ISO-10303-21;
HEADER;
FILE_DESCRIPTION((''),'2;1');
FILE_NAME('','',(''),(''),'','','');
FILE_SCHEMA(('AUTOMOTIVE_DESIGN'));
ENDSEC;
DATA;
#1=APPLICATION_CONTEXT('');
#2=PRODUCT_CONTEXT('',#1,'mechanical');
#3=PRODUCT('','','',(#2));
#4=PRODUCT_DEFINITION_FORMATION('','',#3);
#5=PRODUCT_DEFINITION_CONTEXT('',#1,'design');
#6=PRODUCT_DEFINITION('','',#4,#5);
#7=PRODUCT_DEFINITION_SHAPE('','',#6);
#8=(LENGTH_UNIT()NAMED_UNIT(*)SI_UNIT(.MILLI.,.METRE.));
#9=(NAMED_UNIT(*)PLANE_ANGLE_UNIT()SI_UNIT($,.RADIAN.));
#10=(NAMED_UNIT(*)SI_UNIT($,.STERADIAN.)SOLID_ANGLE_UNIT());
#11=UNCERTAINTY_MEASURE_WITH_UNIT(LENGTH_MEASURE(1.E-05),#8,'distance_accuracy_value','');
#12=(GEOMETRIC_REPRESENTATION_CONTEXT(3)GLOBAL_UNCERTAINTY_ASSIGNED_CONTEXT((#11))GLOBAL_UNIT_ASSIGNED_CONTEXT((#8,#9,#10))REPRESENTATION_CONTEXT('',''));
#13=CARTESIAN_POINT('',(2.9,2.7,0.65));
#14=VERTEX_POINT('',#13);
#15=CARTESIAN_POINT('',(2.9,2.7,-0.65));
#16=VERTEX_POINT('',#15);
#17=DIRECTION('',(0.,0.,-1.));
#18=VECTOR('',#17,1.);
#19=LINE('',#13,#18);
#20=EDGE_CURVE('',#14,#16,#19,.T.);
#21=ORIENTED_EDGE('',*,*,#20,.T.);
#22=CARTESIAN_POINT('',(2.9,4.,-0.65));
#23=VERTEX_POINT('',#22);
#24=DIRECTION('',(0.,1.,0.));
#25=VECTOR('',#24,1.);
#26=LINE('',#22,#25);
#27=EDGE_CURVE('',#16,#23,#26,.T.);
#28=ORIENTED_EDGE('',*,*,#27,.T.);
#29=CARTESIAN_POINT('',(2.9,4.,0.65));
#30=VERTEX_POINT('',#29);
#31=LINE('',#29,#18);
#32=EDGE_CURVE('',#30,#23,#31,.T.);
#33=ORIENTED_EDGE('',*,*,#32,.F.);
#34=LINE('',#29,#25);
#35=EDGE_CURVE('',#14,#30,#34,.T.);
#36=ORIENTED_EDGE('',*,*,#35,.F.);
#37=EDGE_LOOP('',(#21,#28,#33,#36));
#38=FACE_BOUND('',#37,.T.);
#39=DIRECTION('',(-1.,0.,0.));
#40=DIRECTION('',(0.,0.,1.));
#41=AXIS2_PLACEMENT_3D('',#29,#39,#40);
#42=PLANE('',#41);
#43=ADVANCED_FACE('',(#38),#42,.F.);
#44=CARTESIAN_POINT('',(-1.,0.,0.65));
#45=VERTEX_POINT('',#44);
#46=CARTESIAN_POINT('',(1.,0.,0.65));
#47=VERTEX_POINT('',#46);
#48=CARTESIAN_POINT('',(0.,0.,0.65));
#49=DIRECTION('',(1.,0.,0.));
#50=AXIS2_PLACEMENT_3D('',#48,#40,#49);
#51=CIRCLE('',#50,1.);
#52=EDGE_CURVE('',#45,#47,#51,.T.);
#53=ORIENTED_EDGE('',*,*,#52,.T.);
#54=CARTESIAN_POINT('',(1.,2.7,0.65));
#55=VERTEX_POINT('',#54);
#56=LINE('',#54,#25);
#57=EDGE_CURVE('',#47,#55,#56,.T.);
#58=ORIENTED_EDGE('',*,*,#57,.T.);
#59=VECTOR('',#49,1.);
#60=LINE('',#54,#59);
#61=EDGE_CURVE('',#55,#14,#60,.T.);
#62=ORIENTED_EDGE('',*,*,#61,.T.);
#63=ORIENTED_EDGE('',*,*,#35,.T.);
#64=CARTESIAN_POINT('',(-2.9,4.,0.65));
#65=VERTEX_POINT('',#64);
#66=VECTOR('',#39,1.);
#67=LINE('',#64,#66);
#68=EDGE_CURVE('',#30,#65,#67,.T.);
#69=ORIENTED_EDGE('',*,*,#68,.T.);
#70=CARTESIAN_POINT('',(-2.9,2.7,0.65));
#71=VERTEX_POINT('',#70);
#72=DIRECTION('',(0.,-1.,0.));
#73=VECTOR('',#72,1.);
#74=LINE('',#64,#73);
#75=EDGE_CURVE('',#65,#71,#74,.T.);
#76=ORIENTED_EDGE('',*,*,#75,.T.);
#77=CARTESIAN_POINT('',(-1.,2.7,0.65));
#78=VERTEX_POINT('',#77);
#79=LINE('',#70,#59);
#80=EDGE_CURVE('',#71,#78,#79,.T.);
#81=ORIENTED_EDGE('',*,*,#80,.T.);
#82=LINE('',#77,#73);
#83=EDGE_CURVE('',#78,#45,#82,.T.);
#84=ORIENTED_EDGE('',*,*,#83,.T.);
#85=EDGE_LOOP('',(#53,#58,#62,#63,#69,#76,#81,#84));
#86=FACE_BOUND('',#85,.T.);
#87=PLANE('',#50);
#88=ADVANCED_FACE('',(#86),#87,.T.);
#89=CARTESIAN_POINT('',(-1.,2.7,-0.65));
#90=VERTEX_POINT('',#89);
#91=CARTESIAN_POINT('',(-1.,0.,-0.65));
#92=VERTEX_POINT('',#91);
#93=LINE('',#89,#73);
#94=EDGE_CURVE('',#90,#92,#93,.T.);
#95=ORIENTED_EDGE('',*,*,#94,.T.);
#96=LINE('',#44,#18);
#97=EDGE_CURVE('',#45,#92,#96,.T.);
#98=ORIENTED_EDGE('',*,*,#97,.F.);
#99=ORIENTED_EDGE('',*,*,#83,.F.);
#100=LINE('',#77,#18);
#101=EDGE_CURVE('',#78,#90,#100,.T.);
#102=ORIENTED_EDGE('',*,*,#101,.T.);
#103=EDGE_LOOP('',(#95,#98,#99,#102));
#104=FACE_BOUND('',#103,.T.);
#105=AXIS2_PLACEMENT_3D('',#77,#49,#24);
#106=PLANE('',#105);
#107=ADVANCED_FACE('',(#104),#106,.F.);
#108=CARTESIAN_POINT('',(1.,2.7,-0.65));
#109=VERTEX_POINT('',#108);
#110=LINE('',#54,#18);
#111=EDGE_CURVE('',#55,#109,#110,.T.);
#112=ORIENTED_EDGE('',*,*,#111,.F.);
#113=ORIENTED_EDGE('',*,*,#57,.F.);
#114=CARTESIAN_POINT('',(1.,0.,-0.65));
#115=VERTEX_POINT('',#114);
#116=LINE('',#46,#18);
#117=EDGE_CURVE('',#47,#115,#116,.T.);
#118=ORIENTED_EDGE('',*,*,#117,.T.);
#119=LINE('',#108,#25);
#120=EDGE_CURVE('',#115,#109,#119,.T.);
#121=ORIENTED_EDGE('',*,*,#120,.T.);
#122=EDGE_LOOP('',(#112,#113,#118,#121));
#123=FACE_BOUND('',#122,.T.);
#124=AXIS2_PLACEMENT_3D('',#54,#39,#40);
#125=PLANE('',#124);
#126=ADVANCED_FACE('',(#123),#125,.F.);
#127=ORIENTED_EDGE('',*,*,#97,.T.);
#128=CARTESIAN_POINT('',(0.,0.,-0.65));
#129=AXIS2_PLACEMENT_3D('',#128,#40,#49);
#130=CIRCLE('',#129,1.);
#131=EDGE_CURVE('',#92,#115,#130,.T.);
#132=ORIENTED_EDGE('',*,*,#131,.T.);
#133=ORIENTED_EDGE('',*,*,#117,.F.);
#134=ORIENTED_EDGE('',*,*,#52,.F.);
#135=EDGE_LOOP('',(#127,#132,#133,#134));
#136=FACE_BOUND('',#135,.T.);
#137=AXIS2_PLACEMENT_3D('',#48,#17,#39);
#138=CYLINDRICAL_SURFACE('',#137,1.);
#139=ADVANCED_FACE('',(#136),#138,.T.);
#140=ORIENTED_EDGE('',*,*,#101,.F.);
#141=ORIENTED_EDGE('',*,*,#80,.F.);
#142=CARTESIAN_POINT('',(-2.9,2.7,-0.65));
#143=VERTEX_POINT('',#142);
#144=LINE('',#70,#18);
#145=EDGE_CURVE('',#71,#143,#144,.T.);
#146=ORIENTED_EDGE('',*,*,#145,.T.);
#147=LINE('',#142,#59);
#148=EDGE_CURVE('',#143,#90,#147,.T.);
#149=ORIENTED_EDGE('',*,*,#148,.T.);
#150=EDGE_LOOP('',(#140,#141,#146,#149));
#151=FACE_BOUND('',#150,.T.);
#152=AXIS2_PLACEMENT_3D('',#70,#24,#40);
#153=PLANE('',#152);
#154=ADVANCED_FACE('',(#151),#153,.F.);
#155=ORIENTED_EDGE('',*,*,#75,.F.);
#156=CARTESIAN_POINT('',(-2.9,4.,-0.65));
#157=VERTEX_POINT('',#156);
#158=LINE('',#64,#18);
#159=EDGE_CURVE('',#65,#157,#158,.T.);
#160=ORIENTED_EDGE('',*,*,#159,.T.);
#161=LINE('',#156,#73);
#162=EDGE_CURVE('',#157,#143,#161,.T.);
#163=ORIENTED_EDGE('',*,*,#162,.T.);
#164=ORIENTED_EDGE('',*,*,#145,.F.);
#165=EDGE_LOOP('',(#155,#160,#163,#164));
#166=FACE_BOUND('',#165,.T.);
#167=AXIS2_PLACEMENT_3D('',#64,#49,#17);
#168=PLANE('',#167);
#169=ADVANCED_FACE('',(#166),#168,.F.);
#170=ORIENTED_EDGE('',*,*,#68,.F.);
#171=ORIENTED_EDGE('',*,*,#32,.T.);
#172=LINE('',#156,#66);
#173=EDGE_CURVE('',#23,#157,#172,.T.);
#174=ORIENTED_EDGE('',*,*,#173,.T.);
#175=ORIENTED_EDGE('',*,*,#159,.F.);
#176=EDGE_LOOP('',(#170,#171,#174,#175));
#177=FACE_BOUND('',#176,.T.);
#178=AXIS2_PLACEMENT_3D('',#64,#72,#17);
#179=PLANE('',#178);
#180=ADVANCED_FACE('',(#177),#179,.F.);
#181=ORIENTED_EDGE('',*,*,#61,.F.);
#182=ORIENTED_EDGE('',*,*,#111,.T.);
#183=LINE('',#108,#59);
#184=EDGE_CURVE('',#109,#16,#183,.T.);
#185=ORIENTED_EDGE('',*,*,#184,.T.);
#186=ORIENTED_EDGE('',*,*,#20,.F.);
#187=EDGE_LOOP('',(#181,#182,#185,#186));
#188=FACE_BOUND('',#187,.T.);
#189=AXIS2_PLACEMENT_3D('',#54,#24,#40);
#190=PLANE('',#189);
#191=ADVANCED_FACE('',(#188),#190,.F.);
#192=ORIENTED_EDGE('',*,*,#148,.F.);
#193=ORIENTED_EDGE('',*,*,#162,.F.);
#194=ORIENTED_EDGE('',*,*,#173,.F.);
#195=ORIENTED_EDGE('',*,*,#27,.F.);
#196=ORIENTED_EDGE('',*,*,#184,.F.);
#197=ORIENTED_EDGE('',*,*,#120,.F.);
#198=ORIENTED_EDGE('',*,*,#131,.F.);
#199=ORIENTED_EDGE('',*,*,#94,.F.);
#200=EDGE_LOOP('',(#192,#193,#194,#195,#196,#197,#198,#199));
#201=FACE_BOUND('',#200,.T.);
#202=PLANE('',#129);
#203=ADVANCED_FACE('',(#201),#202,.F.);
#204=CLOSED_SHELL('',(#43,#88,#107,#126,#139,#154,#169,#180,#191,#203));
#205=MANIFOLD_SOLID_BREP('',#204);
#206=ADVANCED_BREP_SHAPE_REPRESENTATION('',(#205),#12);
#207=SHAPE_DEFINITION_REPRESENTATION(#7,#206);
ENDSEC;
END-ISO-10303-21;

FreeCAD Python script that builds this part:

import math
import FreeCAD as App
import Part
import Sketcher

doc = App.newDocument("Part")
body = doc.addObject("PartDesign::Body", "Body")

sketch1 = doc.addObject("Sketcher::SketchObject", "Sketch")
body.addObject(sketch1)
sketch1.AttachmentSupport = (doc.XY_Plane, [""])
sketch1.MapMode = "FlatFace"
sketch1.addGeometry([
    Part.LineSegment(App.Vector(1, 2.7, 0), App.Vector(2.9, 2.7, 0)),
    Part.LineSegment(App.Vector(2.9, 2.7, 0), App.Vector(2.9, 4, 0)),
    Part.LineSegment(App.Vector(2.9, 4, 0), App.Vector(-2.9, 4, 0)),
    Part.LineSegment(App.Vector(-2.9, 4, 0), App.Vector(-2.9, 2.7, 0)),
    Part.LineSegment(App.Vector(-2.9, 2.7, 0), App.Vector(-1, 2.7, 0)),
    Part.LineSegment(App.Vector(-1, 2.7, 0), App.Vector(-1, 0, 0)),
    Part.ArcOfCircle(Part.Circle(App.Vector(0, 0, 0), App.Vector(0, 0, 1), 1), math.radians(180), math.radians(360)),
    Part.LineSegment(App.Vector(1, 0, 0), App.Vector(1, 2.7, 0)),
], False)
sketch1.addConstraint([
    Sketcher.Constraint("Coincident", 0, 2, 1, 1),
    Sketcher.Constraint("Coincident", 1, 2, 2, 1),
    Sketcher.Constraint("Coincident", 2, 2, 3, 1),
    Sketcher.Constraint("Coincident", 3, 2, 4, 1),
    Sketcher.Constraint("Coincident", 4, 2, 5, 1),
    Sketcher.Constraint("Tangent", 5, 2, 6, 1),
    Sketcher.Constraint("Tangent", 6, 2, 7, 1),
    Sketcher.Constraint("Coincident", 7, 2, 0, 1),
    Sketcher.Constraint("Horizontal", 0),
    Sketcher.Constraint("Vertical", 1),
    Sketcher.Constraint("Horizontal", 2),
    Sketcher.Constraint("Vertical", 3),
    Sketcher.Constraint("Horizontal", 4),
    Sketcher.Constraint("Vertical", 5),
    Sketcher.Constraint("Vertical", 7),
    Sketcher.Constraint("Coincident", 6, 3, -1, 1),
    Sketcher.Constraint("Symmetric", 0, 2, 3, 2, -2),
    Sketcher.Constraint("Radius", 6, 1.0),
    Sketcher.Constraint("DistanceX", 0, 1, 0, 2, 1.9),
    Sketcher.Constraint("DistanceY", 1, 1, 1, 2, 1.3),
    Sketcher.Constraint("DistanceY", 5, 2, 5, 1, 2.7),
])
pad1 = doc.addObject("PartDesign::Pad", "Pad")
body.addObject(pad1)
pad1.Profile = sketch1
pad1.Length = 1.3
pad1.Midplane = True

doc.recompute()
